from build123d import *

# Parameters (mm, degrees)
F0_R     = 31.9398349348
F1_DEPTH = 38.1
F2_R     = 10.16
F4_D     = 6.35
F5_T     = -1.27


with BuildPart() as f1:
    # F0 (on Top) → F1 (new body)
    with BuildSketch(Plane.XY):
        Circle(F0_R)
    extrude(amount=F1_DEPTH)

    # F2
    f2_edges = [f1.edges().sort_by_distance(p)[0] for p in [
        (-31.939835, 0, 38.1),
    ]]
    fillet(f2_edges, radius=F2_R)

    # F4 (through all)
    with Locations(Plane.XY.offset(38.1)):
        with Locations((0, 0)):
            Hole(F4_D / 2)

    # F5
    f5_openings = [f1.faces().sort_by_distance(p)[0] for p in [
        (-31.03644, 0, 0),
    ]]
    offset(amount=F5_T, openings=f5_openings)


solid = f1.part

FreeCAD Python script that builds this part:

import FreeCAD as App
import Part
import Sketcher
Q = App.Units.Quantity


def edges_at(feature, points):
    """Names of the edges that pass closest to the given points."""
    edges = feature.Shape.Edges
    near = lambda p: min(range(len(edges)), key=lambda i: edges[i].distToShape(Part.Vertex(*p))[0])
    return sorted({f"Edge{near(p) + 1}" for p in points})


def faces_at(feature, points):
    """Names of the faces that lie closest to the given points."""
    faces = feature.Shape.Faces
    near = lambda p: min(range(len(faces)), key=lambda i: faces[i].distToShape(Part.Vertex(*p))[0])
    return sorted({f"Face{near(p) + 1}" for p in points})

doc = App.newDocument("Part")
body = doc.addObject("PartDesign::Body", "Body")

# Sketch on XY plane
sketch1 = body.newObject("Sketcher::SketchObject", "Sketch")
sketch1.AttachmentSupport = (doc.getObject("XY_Plane"), [""])
sketch1.MapMode = "FlatFace"
sketch1.addGeometry(Part.Circle(App.Vector(0, 0, 0), App.Vector(0, 0, 1), 31.939835), False)
sketch1.addConstraint([
    Sketcher.Constraint("Coincident", 0, 3, -1, 1),
    Sketcher.Constraint("Diameter", 0, Q("63.87967 mm")),
])
pad1 = body.newObject("PartDesign::Pad", "Pad")
pad1.Profile = sketch1
pad1.Length = Q("1.5 in")
doc.recompute()

fillet = body.newObject("PartDesign::Fillet", "Fillet")
fillet.Base = (pad1, edges_at(pad1, [(-31.94, 0, 38.1)]))
fillet.Radius = Q("0.4 in")

# Sketch on XY plane
sketch2 = body.newObject("Sketcher::SketchObject", "Sketch001")
sketch2.AttachmentSupport = (doc.getObject("XY_Plane"), [""])
sketch2.MapMode = "FlatFace"
sketch2.AttachmentOffset = App.Placement(App.Vector(0, 0, 1.5 * 25.4), App.Rotation())
sketch2.addGeometry(Part.Circle(App.Vector(0, 0, 0), App.Vector(0, 0, 1), 3.175), False)
sketch2.addConstraint([
    Sketcher.Constraint("Coincident", 0, 3, -1, 1),
    Sketcher.Constraint("Diameter", 0, Q("0.25 in")),
])
doc.recompute()
hole = body.newObject("PartDesign::Hole", "Hole")
hole.Profile = sketch2
hole.ThreadType = "None"
hole.Diameter = Q("0.25 in")
hole.DepthType = "ThroughAll"
doc.recompute()

thickness = body.newObject("PartDesign::Thickness", "Thickness")
thickness.Base = (hole, faces_at(hole, [(-12.776, -12.776, 0)]))
thickness.Value = Q("0.05 in")
thickness.Reversed = True
thickness.Join = "Arc"

doc.recompute()
